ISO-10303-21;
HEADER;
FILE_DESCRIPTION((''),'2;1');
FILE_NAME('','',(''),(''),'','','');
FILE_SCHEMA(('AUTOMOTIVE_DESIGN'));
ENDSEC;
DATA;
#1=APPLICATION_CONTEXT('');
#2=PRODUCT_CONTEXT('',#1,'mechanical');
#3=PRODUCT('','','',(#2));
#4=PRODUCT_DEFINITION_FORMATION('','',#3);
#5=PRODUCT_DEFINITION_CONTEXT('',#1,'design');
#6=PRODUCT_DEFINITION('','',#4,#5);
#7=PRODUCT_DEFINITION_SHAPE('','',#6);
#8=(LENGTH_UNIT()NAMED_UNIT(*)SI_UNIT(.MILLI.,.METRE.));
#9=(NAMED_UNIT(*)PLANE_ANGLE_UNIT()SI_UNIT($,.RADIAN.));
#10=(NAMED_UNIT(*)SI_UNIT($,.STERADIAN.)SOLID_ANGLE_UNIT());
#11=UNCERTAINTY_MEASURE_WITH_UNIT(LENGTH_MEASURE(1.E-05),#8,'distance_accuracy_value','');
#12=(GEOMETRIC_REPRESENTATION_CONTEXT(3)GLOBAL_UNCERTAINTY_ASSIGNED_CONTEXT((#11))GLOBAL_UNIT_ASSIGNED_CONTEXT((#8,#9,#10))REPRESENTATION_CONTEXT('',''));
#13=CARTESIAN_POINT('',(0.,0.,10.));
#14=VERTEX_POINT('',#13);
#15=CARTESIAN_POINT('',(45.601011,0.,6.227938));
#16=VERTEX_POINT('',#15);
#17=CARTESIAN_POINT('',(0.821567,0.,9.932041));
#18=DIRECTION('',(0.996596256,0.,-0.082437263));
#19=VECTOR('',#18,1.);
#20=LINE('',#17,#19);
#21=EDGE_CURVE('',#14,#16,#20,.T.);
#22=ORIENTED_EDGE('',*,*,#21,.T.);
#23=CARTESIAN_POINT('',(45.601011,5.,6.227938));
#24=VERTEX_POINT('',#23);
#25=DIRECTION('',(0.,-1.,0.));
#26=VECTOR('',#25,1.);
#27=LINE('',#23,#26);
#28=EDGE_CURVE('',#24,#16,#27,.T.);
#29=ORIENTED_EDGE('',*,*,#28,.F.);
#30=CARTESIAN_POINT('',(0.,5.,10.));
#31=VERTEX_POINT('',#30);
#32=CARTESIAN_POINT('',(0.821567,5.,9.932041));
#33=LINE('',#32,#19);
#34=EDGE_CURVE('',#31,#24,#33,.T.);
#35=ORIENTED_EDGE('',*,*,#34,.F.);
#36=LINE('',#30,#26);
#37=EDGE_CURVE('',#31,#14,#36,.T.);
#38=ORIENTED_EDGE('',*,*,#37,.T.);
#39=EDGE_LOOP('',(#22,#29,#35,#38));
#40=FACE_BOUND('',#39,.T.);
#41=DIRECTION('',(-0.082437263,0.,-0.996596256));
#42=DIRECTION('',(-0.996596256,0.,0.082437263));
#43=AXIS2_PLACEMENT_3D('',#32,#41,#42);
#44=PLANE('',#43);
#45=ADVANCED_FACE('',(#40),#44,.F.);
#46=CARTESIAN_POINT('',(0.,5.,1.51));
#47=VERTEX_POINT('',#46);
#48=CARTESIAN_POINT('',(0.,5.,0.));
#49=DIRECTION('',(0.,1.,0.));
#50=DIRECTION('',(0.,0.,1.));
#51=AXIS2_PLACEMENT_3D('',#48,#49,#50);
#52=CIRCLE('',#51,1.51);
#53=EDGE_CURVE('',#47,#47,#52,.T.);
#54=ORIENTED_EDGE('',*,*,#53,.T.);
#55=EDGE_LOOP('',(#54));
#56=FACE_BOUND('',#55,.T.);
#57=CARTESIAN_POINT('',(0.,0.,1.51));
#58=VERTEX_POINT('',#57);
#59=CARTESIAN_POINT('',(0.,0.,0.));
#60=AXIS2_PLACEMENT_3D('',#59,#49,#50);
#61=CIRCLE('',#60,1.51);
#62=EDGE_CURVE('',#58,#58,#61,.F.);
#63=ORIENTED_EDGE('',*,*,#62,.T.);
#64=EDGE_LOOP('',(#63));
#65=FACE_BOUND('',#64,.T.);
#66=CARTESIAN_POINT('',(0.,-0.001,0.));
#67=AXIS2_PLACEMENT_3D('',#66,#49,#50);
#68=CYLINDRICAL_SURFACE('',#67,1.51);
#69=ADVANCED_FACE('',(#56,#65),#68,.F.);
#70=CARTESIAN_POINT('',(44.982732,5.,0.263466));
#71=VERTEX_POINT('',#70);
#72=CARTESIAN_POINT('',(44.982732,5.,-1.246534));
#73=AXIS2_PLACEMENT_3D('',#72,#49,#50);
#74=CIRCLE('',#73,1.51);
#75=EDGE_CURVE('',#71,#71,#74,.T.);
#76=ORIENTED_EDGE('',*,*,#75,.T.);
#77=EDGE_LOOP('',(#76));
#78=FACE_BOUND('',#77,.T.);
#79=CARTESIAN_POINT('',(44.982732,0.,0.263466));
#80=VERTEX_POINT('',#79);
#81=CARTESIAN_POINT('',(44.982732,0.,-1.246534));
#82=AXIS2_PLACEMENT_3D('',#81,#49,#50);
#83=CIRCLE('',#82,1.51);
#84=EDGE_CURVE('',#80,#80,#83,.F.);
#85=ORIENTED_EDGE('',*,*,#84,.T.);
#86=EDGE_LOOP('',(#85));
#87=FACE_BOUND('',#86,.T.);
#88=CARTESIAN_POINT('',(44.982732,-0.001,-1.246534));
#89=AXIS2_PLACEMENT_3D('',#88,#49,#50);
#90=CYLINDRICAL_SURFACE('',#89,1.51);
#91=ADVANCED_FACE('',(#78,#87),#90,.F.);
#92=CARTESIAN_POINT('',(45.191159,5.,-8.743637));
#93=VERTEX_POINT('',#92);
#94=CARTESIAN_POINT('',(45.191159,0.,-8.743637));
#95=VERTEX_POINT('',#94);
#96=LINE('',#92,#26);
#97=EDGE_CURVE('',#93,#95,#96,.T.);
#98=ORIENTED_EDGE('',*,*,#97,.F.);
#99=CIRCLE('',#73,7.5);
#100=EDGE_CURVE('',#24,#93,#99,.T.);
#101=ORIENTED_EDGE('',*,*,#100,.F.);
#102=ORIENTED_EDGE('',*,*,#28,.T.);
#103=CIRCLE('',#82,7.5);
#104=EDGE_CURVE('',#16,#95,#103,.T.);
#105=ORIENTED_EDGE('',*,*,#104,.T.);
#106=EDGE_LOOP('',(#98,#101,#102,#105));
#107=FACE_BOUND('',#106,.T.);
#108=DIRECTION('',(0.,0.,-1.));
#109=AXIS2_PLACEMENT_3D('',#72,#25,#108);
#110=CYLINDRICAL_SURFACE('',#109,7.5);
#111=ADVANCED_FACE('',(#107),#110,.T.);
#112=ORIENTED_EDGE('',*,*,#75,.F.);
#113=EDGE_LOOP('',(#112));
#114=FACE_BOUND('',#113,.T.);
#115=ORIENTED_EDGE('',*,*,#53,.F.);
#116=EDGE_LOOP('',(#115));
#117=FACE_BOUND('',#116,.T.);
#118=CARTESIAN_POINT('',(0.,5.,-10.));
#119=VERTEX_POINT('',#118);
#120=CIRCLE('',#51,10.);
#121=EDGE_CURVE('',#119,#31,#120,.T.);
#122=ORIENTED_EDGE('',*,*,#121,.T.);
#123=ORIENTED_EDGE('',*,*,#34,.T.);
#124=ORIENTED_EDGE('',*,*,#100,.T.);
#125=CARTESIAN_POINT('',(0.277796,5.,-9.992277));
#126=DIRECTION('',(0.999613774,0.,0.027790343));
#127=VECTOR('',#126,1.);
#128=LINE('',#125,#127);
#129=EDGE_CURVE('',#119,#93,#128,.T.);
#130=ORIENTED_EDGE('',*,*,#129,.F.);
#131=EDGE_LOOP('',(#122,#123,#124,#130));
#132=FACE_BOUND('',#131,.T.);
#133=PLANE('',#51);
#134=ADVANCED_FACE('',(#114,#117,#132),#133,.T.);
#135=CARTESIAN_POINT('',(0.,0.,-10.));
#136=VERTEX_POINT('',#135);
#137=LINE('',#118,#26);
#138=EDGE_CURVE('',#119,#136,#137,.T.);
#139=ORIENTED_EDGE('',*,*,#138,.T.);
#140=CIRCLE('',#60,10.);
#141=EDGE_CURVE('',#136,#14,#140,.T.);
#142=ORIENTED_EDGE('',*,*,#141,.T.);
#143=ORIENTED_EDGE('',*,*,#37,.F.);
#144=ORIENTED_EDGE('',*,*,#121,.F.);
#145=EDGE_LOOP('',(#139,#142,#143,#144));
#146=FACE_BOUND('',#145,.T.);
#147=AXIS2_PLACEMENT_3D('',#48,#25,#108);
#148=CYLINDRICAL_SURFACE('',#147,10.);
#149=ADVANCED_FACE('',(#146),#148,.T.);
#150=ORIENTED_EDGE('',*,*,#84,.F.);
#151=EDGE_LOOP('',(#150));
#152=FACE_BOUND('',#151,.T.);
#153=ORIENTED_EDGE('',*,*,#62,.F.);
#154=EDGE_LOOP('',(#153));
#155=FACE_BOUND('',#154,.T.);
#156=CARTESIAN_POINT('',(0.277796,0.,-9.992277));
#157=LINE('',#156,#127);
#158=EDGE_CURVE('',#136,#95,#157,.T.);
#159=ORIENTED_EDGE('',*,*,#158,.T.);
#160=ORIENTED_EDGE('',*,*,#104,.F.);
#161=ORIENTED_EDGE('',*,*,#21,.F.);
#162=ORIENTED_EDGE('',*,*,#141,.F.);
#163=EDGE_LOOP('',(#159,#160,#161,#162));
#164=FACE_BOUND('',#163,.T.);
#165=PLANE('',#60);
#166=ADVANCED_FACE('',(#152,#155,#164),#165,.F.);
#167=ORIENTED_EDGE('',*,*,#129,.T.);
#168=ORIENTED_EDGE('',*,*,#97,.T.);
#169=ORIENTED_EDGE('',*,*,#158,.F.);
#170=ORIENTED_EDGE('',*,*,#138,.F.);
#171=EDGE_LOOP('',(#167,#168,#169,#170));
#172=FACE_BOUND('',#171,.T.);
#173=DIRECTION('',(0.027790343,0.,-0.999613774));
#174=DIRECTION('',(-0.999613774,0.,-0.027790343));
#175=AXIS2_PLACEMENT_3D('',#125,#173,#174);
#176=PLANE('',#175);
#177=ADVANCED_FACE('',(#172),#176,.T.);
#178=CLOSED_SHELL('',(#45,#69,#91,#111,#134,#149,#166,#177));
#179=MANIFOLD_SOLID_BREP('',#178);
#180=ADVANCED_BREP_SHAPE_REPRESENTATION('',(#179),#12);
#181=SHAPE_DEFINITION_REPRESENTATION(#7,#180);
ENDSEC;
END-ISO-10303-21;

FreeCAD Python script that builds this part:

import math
import FreeCAD as App
import Part
import Sketcher
Q = App.Units.Quantity

doc = App.newDocument("Part")
params = doc.addObject("Spreadsheet::Sheet", "Params")
for row, (alias, value) in enumerate([
    ("sketch1_radius", "10 mm"),
    ("sketch1_radius2", "7.5 mm"),
    ("pad1_length", "5 mm"),
    ("sketch2_diameter", "3.02 mm"),
    ("sketch3_diameter", "3.02 mm"),
], start=1):
    params.set(f"A{row}", alias)
    params.set(f"B{row}", "=" + value)
    params.setAlias(f"B{row}", alias)

body = doc.addObject("PartDesign::Body", "Body")

sketch1 = doc.addObject("Sketcher::SketchObject", "Sketch")
body.addObject(sketch1)
sketch1.AttachmentSupport = (doc.XZ_Plane, [""])
sketch1.MapMode = "FlatFace"
sketch1.addGeometry(Part.ArcOfCircle(Part.Circle(App.Vector(0, 0, 0), App.Vector(0, 0, 1), 10), math.radians(90), math.radians(270)), False)
sketch1.addGeometry(Part.LineSegment(App.Vector(0, 10, 0), App.Vector(45.601011, 6.227938, 0)), False)
sketch1.addGeometry(Part.ArcOfCircle(Part.Circle(App.Vector(44.982732, -1.246534, 0), App.Vector(0, 0, 1), 7.5), math.radians(-88.407526), math.radians(85.271326)), False)
sketch1.addGeometry(Part.LineSegment(App.Vector(45.191159, -8.743637, 0), App.Vector(0, -10, 0)), False)
sketch1.addConstraint(Sketcher.Constraint("Coincident", 0, 1, 1, 1))
sketch1.addConstraint(Sketcher.Constraint("Tangent", 1, 2, 2, 2))
sketch1.addConstraint(Sketcher.Constraint("Tangent", 2, 1, 3, 1))
sketch1.addConstraint(Sketcher.Constraint("Coincident", 3, 2, 0, 2))
sketch1.addConstraint(Sketcher.Constraint("Coincident", 0, 3, -1, 1))
sketch1.addConstraint(Sketcher.Constraint("PointOnObject", 0, 1, -2))
sketch1.addConstraint(Sketcher.Constraint("PointOnObject", 3, 2, -2))
sketch1.addConstraint(Sketcher.Constraint("Radius", 0, Q("10 mm")))
sketch1.addConstraint(Sketcher.Constraint("Radius", 2, Q("7.5 mm")))
sketch1.addConstraint(Sketcher.Constraint("Distance", 3, Q("45.20862 mm")))
sketch1.addConstraint(Sketcher.Constraint("DistanceX", -1, 1, 2, 3, Q("44.982732 mm")))
sketch1.setExpression("Constraints[7]", "Params.sketch1_radius")
sketch1.setExpression("Constraints[8]", "Params.sketch1_radius2")
pad1 = doc.addObject("PartDesign::Pad", "Pad")
body.addObject(pad1)
pad1.Profile = sketch1
pad1.setExpression("Length", "Params.pad1_length")
pad1.Reversed = True

sketch2 = doc.addObject("Sketcher::SketchObject", "Sketch001")
body.addObject(sketch2)
sketch2.AttachmentSupport = (doc.XZ_Plane, [""])
sketch2.MapMode = "FlatFace"
sketch2.AttachmentOffset = App.Placement(App.Vector(0, 0, -5), App.Rotation())
sketch2.addGeometry(Part.Circle(App.Vector(0, 0, 0), App.Vector(0, 0, 1), 1.51), False)
sketch2.addConstraint(Sketcher.Constraint("Coincident", 0, 3, -1, 1))
sketch2.addConstraint(Sketcher.Constraint("Diameter", 0, Q("3.02 mm")))
sketch2.setExpression("Constraints[1]", "Params.sketch2_diameter")
pocket1 = doc.addObject("PartDesign::Pocket", "Pocket")
body.addObject(pocket1)
pocket1.Profile = sketch2
pocket1.Type = "UpToFirst"
pocket1.Reversed = True

sketch3 = doc.addObject("Sketcher::SketchObject", "Sketch002")
body.addObject(sketch3)
sketch3.AttachmentSupport = (doc.XZ_Plane, [""])
sketch3.MapMode = "FlatFace"
sketch3.AttachmentOffset = App.Placement(App.Vector(0, 0, -5), App.Rotation())
sketch3.addGeometry(Part.Circle(App.Vector(44.982732, -1.246534, 0), App.Vector(0, 0, 1), 1.51), False)
sketch3.addConstraint(Sketcher.Constraint("Diameter", 0, Q("3.02 mm")))
sketch3.addConstraint(Sketcher.Constraint("DistanceX", -1, 1, 0, 3, Q("44.982732 mm")))
sketch3.addConstraint(Sketcher.Constraint("DistanceY", 0, 3, -1, 1, Q("1.246534 mm")))
sketch3.setExpression("Constraints[0]", "Params.sketch3_diameter")
pocket2 = doc.addObject("PartDesign::Pocket", "Pocket001")
body.addObject(pocket2)
pocket2.Profile = sketch3
pocket2.Type = "UpToFirst"
pocket2.Reversed = True

doc.recompute()
